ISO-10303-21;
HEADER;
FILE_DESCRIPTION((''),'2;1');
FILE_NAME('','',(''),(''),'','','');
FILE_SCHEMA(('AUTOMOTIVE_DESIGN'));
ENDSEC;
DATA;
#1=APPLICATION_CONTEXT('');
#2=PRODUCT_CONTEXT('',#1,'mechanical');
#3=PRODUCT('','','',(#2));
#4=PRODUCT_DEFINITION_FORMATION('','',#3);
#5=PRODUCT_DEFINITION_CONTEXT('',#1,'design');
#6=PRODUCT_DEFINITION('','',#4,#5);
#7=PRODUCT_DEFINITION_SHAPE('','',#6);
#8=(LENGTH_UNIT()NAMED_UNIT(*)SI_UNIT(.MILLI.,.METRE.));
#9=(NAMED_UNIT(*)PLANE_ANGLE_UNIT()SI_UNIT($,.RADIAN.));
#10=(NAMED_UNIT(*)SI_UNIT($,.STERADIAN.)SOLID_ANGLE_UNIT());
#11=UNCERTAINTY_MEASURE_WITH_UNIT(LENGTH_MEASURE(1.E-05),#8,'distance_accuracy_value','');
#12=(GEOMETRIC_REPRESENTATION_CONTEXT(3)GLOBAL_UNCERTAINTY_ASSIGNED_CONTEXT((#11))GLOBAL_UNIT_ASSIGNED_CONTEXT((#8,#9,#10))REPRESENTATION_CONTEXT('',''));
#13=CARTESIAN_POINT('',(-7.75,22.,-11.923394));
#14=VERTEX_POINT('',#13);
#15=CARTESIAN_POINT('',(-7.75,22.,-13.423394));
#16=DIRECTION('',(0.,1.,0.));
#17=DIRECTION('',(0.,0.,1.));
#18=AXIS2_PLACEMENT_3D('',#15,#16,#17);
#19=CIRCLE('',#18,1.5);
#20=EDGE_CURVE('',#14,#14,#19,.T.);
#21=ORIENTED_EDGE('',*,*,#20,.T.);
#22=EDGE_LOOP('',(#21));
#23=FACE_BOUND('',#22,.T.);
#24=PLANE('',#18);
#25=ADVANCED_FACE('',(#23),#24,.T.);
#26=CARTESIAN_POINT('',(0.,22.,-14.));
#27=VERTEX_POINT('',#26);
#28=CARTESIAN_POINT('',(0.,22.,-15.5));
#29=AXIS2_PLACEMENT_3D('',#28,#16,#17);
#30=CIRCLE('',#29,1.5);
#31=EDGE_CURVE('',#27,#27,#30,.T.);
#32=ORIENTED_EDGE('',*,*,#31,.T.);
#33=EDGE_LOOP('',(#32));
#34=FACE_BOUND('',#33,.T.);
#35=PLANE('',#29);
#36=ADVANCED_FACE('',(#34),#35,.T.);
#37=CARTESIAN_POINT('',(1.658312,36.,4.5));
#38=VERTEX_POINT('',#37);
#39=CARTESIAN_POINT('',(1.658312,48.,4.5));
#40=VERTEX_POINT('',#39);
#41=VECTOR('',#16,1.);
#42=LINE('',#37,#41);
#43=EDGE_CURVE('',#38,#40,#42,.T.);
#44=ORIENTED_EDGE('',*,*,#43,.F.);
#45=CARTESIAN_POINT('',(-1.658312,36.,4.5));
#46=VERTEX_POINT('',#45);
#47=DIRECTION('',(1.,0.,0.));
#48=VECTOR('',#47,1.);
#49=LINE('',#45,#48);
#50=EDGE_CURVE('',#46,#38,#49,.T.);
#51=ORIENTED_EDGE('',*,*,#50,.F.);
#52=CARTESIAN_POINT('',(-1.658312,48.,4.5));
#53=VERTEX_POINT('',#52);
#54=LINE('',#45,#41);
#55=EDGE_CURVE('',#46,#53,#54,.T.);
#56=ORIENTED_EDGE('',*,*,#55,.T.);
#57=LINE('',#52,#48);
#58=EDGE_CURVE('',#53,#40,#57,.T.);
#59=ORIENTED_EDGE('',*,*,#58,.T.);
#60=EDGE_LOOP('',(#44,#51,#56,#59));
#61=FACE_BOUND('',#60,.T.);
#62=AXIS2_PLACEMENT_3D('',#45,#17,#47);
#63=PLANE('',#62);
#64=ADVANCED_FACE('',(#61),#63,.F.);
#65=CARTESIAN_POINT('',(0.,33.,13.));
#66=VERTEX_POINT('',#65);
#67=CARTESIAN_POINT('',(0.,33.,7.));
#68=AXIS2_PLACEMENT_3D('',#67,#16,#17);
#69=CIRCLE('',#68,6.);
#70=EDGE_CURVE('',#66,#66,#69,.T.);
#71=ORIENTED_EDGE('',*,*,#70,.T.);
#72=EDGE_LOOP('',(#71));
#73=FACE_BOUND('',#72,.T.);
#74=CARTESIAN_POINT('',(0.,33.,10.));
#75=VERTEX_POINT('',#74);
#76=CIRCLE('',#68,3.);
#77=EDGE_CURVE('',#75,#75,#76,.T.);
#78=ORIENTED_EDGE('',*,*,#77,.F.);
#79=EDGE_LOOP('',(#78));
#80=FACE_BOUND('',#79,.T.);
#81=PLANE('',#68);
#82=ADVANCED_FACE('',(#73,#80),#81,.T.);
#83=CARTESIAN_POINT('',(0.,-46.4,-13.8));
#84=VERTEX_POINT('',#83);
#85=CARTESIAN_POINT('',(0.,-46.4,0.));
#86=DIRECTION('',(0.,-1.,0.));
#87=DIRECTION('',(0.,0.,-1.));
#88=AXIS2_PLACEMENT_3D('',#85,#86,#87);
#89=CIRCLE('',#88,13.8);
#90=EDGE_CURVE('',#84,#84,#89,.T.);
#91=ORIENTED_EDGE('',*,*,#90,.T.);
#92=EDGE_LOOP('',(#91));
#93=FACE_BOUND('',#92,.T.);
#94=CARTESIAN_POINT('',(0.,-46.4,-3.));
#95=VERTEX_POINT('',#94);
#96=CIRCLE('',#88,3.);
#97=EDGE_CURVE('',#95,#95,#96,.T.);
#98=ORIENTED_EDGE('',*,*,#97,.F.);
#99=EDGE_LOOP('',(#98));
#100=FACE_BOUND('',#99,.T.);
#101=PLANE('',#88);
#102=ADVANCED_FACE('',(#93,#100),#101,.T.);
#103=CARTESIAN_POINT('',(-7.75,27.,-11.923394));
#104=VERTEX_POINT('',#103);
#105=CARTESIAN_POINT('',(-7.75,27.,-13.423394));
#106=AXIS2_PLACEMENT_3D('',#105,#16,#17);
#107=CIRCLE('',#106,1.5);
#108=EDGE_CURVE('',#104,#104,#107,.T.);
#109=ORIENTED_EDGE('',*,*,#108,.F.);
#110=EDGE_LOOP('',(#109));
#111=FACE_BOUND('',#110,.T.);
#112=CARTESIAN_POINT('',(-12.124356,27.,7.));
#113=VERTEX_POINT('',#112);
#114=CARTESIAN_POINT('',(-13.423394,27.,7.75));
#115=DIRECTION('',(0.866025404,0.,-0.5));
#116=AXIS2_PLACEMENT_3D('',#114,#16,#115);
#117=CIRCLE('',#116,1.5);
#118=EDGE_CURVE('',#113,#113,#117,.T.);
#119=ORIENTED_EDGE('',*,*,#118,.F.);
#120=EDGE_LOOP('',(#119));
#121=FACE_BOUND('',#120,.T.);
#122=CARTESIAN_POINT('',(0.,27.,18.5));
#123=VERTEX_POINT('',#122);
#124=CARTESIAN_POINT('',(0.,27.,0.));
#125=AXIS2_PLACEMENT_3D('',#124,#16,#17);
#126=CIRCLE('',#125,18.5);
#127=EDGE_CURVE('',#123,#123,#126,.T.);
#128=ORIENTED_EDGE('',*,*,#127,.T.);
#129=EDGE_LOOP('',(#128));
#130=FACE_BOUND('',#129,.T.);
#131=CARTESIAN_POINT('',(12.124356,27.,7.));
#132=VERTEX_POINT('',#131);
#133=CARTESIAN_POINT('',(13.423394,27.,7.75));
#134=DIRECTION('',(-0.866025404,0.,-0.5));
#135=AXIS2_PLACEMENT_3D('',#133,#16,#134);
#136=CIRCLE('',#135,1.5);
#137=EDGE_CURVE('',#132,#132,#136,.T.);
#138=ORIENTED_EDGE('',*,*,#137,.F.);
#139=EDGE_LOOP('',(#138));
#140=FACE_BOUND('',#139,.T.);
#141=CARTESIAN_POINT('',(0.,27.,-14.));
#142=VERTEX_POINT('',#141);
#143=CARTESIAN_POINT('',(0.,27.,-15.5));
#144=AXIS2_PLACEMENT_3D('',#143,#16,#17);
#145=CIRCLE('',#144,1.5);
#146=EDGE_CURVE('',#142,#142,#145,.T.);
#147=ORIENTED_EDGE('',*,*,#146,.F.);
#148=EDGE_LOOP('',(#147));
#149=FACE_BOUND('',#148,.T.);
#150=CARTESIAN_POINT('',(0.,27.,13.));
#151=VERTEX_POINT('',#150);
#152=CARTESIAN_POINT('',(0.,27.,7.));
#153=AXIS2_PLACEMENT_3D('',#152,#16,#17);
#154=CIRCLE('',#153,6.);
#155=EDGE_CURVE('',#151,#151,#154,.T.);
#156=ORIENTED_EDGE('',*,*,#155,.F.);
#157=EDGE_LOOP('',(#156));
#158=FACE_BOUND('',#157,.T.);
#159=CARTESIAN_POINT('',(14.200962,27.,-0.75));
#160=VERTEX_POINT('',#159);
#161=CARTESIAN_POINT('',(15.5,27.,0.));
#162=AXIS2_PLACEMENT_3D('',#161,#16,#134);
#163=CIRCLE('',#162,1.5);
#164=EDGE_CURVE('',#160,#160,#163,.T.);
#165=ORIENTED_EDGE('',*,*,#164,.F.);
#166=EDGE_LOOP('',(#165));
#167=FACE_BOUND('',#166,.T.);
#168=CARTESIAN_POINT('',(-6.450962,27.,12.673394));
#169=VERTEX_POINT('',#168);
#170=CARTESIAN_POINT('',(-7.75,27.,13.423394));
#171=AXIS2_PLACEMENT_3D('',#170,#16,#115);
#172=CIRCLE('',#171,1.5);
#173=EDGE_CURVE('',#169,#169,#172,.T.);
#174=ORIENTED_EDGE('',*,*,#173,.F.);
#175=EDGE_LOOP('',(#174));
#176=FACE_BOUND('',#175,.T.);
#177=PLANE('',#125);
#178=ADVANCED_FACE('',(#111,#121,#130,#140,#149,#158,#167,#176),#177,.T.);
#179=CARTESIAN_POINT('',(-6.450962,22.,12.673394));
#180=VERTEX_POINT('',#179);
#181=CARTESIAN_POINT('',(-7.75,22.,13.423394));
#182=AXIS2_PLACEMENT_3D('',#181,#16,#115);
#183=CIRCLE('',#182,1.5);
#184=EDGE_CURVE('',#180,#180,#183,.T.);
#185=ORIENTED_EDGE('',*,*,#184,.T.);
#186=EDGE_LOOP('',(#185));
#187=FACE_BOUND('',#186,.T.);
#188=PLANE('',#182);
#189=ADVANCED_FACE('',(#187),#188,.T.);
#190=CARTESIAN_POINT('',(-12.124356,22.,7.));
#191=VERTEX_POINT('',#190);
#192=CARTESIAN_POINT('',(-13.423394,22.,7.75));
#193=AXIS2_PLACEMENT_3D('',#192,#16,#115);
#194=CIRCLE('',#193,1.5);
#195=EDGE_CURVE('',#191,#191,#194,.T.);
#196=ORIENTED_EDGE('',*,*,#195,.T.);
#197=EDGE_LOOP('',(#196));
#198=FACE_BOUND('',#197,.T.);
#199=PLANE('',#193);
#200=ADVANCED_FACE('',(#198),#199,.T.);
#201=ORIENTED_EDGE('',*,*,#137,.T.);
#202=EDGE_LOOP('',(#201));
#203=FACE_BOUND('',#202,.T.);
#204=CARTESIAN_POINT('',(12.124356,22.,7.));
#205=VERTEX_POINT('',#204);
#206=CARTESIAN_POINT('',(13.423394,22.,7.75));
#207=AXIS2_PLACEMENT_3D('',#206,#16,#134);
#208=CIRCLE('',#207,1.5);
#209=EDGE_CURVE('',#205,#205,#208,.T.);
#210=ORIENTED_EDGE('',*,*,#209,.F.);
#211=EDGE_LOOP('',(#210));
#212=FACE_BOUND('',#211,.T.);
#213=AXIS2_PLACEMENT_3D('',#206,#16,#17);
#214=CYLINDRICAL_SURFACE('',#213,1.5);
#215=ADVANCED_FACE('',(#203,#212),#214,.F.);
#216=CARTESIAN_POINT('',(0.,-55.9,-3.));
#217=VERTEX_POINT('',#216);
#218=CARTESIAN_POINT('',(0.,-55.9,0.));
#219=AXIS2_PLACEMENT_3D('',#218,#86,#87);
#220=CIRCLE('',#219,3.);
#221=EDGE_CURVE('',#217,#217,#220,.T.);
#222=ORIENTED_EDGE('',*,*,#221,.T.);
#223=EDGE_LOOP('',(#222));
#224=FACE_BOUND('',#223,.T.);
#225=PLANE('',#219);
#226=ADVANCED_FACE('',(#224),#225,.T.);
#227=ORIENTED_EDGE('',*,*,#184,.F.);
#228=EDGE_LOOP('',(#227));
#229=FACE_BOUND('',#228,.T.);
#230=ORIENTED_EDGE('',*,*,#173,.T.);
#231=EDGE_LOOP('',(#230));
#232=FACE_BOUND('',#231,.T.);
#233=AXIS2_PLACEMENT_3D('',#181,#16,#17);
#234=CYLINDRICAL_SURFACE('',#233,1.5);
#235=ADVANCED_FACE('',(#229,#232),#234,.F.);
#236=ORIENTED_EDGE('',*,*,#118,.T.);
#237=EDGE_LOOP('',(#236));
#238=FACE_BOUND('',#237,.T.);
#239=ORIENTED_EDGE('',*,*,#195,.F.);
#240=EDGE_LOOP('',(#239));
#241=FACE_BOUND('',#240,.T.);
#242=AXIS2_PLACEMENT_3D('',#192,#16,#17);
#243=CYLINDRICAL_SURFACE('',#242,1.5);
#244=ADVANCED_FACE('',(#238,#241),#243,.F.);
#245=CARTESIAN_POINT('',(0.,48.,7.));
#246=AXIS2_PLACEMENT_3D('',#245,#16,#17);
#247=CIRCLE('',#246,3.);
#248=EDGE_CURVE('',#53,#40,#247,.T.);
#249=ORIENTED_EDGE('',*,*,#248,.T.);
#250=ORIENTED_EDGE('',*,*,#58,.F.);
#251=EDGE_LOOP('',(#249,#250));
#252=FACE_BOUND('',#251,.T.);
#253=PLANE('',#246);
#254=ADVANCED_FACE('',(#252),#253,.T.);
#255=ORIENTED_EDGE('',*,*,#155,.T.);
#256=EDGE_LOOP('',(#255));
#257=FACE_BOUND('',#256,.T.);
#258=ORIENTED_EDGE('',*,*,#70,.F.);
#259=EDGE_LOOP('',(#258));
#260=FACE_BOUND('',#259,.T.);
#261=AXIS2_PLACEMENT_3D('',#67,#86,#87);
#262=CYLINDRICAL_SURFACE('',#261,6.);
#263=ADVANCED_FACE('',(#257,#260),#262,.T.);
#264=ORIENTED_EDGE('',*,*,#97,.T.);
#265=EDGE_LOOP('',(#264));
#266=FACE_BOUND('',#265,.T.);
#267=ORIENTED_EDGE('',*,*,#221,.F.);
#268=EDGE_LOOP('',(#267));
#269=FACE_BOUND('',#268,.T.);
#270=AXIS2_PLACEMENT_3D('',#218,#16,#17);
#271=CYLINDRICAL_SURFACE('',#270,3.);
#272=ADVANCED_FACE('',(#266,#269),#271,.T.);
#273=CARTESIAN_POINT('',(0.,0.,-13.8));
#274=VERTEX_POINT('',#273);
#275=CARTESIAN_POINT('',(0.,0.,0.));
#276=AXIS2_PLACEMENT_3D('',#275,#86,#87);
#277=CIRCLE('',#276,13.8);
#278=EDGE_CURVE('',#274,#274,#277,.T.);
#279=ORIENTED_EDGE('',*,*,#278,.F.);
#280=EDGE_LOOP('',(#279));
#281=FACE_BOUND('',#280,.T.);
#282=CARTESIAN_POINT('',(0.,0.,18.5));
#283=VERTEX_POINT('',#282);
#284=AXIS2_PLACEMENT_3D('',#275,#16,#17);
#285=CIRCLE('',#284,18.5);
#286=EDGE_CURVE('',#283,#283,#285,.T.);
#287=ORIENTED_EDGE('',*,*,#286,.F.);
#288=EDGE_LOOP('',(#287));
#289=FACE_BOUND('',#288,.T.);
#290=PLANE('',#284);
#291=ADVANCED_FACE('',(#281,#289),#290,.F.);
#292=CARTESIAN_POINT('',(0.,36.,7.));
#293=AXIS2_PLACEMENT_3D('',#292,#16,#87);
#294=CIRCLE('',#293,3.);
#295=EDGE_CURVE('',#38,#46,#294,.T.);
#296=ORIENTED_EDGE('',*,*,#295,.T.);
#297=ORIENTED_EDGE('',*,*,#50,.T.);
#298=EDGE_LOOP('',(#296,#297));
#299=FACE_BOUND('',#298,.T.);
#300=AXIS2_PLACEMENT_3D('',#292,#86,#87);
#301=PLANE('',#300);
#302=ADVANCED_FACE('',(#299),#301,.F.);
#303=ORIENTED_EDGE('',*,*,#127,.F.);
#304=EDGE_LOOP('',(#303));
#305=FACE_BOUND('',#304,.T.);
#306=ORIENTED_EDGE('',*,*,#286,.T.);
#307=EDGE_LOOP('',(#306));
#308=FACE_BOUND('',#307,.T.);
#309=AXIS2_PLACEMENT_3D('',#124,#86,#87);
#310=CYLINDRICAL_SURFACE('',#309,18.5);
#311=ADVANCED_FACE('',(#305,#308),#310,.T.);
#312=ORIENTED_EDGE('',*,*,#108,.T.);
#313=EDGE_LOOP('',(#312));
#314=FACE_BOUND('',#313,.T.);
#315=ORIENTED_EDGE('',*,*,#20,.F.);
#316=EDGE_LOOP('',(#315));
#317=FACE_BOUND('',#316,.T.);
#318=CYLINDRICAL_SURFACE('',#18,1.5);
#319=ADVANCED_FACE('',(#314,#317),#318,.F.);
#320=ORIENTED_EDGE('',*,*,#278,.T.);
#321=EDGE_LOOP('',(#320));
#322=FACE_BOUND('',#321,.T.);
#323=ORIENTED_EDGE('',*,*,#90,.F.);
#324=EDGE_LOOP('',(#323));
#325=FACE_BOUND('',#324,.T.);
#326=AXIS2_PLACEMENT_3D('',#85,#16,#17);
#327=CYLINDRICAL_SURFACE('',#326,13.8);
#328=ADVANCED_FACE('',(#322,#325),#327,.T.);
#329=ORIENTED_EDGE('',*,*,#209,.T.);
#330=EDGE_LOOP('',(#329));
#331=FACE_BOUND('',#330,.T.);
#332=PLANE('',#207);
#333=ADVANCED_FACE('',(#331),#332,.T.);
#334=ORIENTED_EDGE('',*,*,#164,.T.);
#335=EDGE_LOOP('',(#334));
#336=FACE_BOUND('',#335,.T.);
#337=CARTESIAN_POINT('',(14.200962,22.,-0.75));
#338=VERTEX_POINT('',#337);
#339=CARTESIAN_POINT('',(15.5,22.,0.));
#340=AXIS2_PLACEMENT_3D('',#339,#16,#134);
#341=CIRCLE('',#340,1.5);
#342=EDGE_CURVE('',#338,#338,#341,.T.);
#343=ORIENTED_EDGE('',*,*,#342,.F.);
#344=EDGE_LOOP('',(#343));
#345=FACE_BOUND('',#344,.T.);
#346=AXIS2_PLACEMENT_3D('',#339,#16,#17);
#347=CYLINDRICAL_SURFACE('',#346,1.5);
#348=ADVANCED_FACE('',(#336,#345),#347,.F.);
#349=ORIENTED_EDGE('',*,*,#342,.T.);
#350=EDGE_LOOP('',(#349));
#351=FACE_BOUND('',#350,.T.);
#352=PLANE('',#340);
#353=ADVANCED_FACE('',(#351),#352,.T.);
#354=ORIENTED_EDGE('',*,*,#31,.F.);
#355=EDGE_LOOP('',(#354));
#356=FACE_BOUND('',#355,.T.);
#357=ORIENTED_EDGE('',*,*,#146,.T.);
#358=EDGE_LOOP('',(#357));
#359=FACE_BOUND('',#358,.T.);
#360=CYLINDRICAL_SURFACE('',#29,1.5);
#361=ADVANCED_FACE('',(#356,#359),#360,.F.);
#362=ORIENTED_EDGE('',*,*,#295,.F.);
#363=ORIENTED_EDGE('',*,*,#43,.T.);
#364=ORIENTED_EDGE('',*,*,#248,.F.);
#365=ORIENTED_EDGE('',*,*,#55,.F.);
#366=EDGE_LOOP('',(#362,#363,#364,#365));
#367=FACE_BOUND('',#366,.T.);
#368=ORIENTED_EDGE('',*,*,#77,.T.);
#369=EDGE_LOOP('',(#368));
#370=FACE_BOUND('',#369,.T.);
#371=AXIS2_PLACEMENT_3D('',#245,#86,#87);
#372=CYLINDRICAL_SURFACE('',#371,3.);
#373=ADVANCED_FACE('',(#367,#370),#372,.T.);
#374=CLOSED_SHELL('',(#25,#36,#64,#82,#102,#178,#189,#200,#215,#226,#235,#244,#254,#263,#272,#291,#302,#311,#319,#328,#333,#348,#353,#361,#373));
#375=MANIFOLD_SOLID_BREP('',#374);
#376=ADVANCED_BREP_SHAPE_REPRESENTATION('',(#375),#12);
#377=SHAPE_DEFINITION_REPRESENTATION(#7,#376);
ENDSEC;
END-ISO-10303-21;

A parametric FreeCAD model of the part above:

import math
import FreeCAD as App
import Part
import Sketcher

doc = App.newDocument("Part")
params = doc.addObject("Spreadsheet::Sheet", "Params")
for row, (alias, value) in enumerate([
    ("sketch1_diameter", "37 mm"),
    ("pad1_length", "27 mm"),
    ("sketch2_diameter", "3 mm"),
    ("pocket1_length", "5 mm"),
    ("sketch3_diameter", "12 mm"),
    ("pad2_length", "6 mm"),
    ("sketch4_diameter", "6 mm"),
    ("pad3_length", "15 mm"),
    ("sketch5_radius", "3 mm"),
    ("pocket2_length", "12 mm"),
    ("sketch6_diameter", "27.6 mm"),
    ("pad4_length", "46.4 mm"),
    ("sketch7_diameter", "6 mm"),
    ("pad5_length", "9.5 mm"),
], start=1):
    params.set(f"A{row}", alias)
    params.set(f"B{row}", "=" + value)
    params.setAlias(f"B{row}", alias)

body = doc.addObject("PartDesign::Body", "Body")

sketch1 = body.newObject("Sketcher::SketchObject", "Sketch")
sketch1.AttachmentSupport = (doc.getObject("XZ_Plane"), [""])
sketch1.MapMode = "FlatFace"
sketch1.addGeometry(Part.Circle(App.Vector(0, 0, 0), App.Vector(0, 0, 1), 18.5), False)
sketch1.addConstraint(Sketcher.Constraint("Coincident", 0, 3, -1, 1))
sketch1.addConstraint(Sketcher.Constraint("Diameter", 0, 37.0))
sketch1.setExpression("Constraints[1]", "Params.sketch1_diameter")
pad1 = body.newObject("PartDesign::Pad", "Pad")
pad1.Profile = sketch1
pad1.setExpression("Length", "Params.pad1_length")
pad1.Reversed = True

sketch2 = body.newObject("Sketcher::SketchObject", "Sketch001")
sketch2.AttachmentSupport = (doc.getObject("XZ_Plane"), [""])
sketch2.MapMode = "FlatFace"
sketch2.AttachmentOffset = App.Placement(App.Vector(0, 0, -27), App.Rotation())
sketch2.addGeometry(Part.Circle(App.Vector(0, -15.5, 0), App.Vector(0, 0, 1), 1.5), False)
sketch2.addGeometry(Part.Circle(App.Vector(-7.75, -13.423394, 0), App.Vector(0, 0, 1), 1.5), False)
sketch2.addConstraint(Sketcher.Constraint("Equal", 0, 1))
sketch2.addConstraint(Sketcher.Constraint("PointOnObject", 0, 3, -2))
sketch2.addConstraint(Sketcher.Constraint("Diameter", 0, 3.0))
sketch2.addConstraint(Sketcher.Constraint("DistanceY", 0, 3, -1, 1, 15.5))
sketch2.addConstraint(Sketcher.Constraint("DistanceX", 1, 3, -1, 1, 7.75))
sketch2.addConstraint(Sketcher.Constraint("DistanceY", 1, 3, -1, 1, 13.423394))
sketch2.setExpression("Constraints[2]", "Params.sketch2_diameter")
pocket1 = body.newObject("PartDesign::Pocket", "Pocket")
pocket1.Profile = sketch2
pocket1.setExpression("Length", "Params.pocket1_length")
pocket1.Reversed = True
doc.recompute()

polarpattern = body.newObject("PartDesign::PolarPattern", "PolarPattern")
polarpattern.Originals = [pocket1]
polarpattern.Axis = (doc.getObject("Y_Axis"), [""])
polarpattern.Angle = 360
polarpattern.Occurrences = 3
body.Tip = polarpattern

sketch3 = body.newObject("Sketcher::SketchObject", "Sketch002")
sketch3.AttachmentSupport = (doc.getObject("XZ_Plane"), [""])
sketch3.MapMode = "FlatFace"
sketch3.AttachmentOffset = App.Placement(App.Vector(0, 0, -27), App.Rotation())
sketch3.addGeometry(Part.Circle(App.Vector(0, 7, 0), App.Vector(0, 0, 1), 6), False)
sketch3.addConstraint(Sketcher.Constraint("PointOnObject", 0, 3, -2))
sketch3.addConstraint(Sketcher.Constraint("Diameter", 0, 12.0))
sketch3.addConstraint(Sketcher.Constraint("DistanceY", -1, 1, 0, 3, 7.0))
sketch3.setExpression("Constraints[1]", "Params.sketch3_diameter")
pad2 = body.newObject("PartDesign::Pad", "Pad001")
pad2.Profile = sketch3
pad2.setExpression("Length", "Params.pad2_length")
pad2.Reversed = True

sketch4 = body.newObject("Sketcher::SketchObject", "Sketch003")
sketch4.AttachmentSupport = (doc.getObject("XZ_Plane"), [""])
sketch4.MapMode = "FlatFace"
sketch4.AttachmentOffset = App.Placement(App.Vector(0, 0, -33), App.Rotation())
sketch4.addGeometry(Part.Circle(App.Vector(0, 7, 0), App.Vector(0, 0, 1), 3), False)
sketch4.addConstraint(Sketcher.Constraint("PointOnObject", 0, 3, -2))
sketch4.addConstraint(Sketcher.Constraint("Diameter", 0, 6.0))
sketch4.addConstraint(Sketcher.Constraint("DistanceY", -1, 1, 0, 3, 7.0))
sketch4.setExpression("Constraints[1]", "Params.sketch4_diameter")
pad3 = body.newObject("PartDesign::Pad", "Pad002")
pad3.Profile = sketch4
pad3.setExpression("Length", "Params.pad3_length")
pad3.Reversed = True

sketch5 = body.newObject("Sketcher::SketchObject", "Sketch004")
sketch5.AttachmentSupport = (doc.getObject("XZ_Plane"), [""])
sketch5.MapMode = "FlatFace"
sketch5.AttachmentOffset = App.Placement(App.Vector(0, 0, -48), App.Rotation())
sketch5.addGeometry(Part.LineSegment(App.Vector(-1.658312, 4.5, 0), App.Vector(1.658312, 4.5, 0)), False)
sketch5.addGeometry(Part.ArcOfCircle(Part.Circle(App.Vector(0, 7, 0), App.Vector(0, 0, 1), 3), math.radians(-123.55731), math.radians(-56.44269)), False)
sketch5.addConstraint(Sketcher.Constraint("Coincident", 0, 1, 1, 1))
sketch5.addConstraint(Sketcher.Constraint("Coincident", 1, 2, 0, 2))
sketch5.addConstraint(Sketcher.Constraint("Horizontal", 0))
sketch5.addConstraint(Sketcher.Constraint("PointOnObject", 1, 3, -2))
sketch5.addConstraint(Sketcher.Constraint("Radius", 1, 3.0))
sketch5.addConstraint(Sketcher.Constraint("DistanceY", -1, 1, 1, 3, 7.0))
sketch5.addConstraint(Sketcher.Constraint("DistanceY", -1, 1, 0, 1, 4.5))
sketch5.setExpression("Constraints[4]", "Params.sketch5_radius")
pocket2 = body.newObject("PartDesign::Pocket", "Pocket001")
pocket2.Profile = sketch5
pocket2.setExpression("Length", "Params.pocket2_length")
pocket2.Reversed = True

sketch6 = body.newObject("Sketcher::SketchObject", "Sketch005")
sketch6.AttachmentSupport = (doc.getObject("XZ_Plane"), [""])
sketch6.MapMode = "FlatFace"
sketch6.addGeometry(Part.Circle(App.Vector(0, 0, 0), App.Vector(0, 0, 1), 13.8), False)
sketch6.addConstraint(Sketcher.Constraint("Coincident", 0, 3, -1, 1))
sketch6.addConstraint(Sketcher.Constraint("Diameter", 0, 27.6))
sketch6.setExpression("Constraints[1]", "Params.sketch6_diameter")
pad4 = body.newObject("PartDesign::Pad", "Pad003")
pad4.Profile = sketch6
pad4.setExpression("Length", "Params.pad4_length")

sketch7 = body.newObject("Sketcher::SketchObject", "Sketch006")
sketch7.AttachmentSupport = (doc.getObject("XZ_Plane"), [""])
sketch7.MapMode = "FlatFace"
sketch7.AttachmentOffset = App.Placement(App.Vector(0, 0, 46.4), App.Rotation())
sketch7.addGeometry(Part.Circle(App.Vector(0, 0, 0), App.Vector(0, 0, 1), 3), False)
sketch7.addConstraint(Sketcher.Constraint("Coincident", 0, 3, -1, 1))
sketch7.addConstraint(Sketcher.Constraint("Diameter", 0, 6.0))
sketch7.setExpression("Constraints[1]", "Params.sketch7_diameter")
pad5 = body.newObject("PartDesign::Pad", "Pad004")
pad5.Profile = sketch7
pad5.setExpression("Length", "Params.pad5_length")

doc.recompute()
